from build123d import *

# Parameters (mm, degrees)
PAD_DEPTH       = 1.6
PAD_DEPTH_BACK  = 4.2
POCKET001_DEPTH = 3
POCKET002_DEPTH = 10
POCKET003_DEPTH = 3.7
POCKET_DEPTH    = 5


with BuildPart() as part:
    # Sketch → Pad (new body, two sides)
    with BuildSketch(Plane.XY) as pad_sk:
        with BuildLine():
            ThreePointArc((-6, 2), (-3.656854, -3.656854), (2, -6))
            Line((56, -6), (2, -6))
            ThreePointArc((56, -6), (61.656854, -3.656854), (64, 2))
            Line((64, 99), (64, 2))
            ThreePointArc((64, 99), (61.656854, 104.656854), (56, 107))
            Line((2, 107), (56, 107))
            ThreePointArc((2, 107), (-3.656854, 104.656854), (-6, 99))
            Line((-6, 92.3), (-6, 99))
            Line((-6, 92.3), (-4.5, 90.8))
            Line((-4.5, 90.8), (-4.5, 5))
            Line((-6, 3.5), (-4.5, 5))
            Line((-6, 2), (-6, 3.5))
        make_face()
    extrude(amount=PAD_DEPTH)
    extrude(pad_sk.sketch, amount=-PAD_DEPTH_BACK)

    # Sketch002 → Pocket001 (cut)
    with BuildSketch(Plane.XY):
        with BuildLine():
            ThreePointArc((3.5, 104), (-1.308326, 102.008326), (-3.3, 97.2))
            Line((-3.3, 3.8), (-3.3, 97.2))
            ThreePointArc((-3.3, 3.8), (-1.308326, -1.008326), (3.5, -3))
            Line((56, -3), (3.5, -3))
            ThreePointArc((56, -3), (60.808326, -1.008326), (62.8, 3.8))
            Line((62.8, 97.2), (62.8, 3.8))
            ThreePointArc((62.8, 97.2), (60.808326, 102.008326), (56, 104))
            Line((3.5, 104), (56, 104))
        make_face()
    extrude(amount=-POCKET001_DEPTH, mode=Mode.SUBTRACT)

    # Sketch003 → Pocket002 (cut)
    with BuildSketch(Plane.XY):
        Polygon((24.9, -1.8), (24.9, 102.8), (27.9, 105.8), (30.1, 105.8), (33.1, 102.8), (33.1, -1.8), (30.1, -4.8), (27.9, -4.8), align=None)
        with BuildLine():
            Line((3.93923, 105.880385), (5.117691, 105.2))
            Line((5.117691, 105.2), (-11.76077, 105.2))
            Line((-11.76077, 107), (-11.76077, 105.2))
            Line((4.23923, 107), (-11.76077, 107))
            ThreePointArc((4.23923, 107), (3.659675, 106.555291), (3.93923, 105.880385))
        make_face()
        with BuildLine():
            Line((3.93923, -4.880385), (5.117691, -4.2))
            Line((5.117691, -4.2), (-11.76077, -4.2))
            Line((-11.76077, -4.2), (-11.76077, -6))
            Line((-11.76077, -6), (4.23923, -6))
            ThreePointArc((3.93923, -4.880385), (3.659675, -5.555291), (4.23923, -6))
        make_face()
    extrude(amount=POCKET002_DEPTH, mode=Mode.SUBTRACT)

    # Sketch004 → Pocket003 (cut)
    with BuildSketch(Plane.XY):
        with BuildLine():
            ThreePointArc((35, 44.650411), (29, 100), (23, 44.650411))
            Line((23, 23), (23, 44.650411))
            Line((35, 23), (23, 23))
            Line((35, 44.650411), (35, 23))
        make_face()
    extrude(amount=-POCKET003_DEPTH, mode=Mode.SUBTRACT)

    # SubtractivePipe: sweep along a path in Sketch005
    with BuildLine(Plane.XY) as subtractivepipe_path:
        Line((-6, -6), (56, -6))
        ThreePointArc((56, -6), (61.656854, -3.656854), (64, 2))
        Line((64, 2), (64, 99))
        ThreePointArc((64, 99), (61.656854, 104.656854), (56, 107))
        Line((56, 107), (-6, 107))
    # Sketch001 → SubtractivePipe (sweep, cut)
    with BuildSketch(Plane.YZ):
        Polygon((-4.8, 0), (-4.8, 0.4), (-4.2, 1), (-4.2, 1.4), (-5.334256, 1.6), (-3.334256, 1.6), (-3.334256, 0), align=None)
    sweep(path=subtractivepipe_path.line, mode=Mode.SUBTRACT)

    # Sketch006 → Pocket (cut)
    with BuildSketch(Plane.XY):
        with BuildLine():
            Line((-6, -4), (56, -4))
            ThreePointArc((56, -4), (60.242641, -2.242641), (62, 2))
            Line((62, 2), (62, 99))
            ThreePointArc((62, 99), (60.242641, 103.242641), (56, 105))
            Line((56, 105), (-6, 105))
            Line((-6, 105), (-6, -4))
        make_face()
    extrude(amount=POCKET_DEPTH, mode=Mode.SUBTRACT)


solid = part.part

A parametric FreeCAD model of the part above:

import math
import FreeCAD as App
import Part
import Sketcher
from FreeCAD import Vector
Q = App.Units.Quantity


def add_polygon(sketch, points):
    """Adds a closed chain of lines whose ends are joined by coincident constraints."""
    first, n = sketch.GeometryCount, len(points)
    for a, b in zip(points, points[1:] + points[:1]):
        sketch.addGeometry(Part.LineSegment(App.Vector(*a, 0), App.Vector(*b, 0)), False)
    for i in range(n):
        sketch.addConstraint(Sketcher.Constraint("Coincident", first + i, 2, first + (i + 1) % n, 1))

doc = App.newDocument("Part")
body = doc.addObject("PartDesign::Body", "Body")

# Sketch on XY plane
sketch1 = body.newObject("Sketcher::SketchObject", "Sketch")
sketch1.AttachmentSupport = (doc.getObject("XY_Plane"), [""])
sketch1.MapMode = "FlatFace"
sketch1.addGeometry([
    Part.ArcOfCircle(Part.Circle(Vector(2.000001, 2.000001, 0), Vector(0, 0, 1), 8.000001), math.radians(-179.999994), math.radians(-90.000006)),  # 0
    Part.LineSegment(Vector(2, -6, 0), Vector(56, -6, 0)),  # 1
    Part.ArcOfCircle(Part.Circle(Vector(55.999999, 2.000001, 0), Vector(0, 0, 1), 8.000001), math.radians(-89.999994), math.radians(-0.000006)),  # 2
    Part.LineSegment(Vector(64, 2, 0), Vector(64, 99, 0)),  # 3
    Part.ArcOfCircle(Part.Circle(Vector(55.999999, 98.999999, 0), Vector(0, 0, 1), 8.000001), math.radians(0.000006), math.radians(89.999994)),  # 4
    Part.LineSegment(Vector(56, 107, 0), Vector(2, 107, 0)),  # 5
    Part.ArcOfCircle(Part.Circle(Vector(2.000001, 98.999999, 0), Vector(0, 0, 1), 8.000001), math.radians(90.000006), math.radians(179.999994)),  # 6
    Part.LineSegment(Vector(-6, 99, 0), Vector(-6, 92.3, 0)),  # 7
    Part.LineSegment(Vector(-6, 92.3, 0), Vector(-4.5, 90.8, 0)),  # 8
    Part.LineSegment(Vector(-4.5, 90.8, 0), Vector(-4.5, 5, 0)),  # 9
    Part.LineSegment(Vector(-4.5, 5, 0), Vector(-6, 3.5, 0)),  # 10
    Part.LineSegment(Vector(-6, 3.5, 0), Vector(-6, 2, 0)),  # 11
], False)
sketch1.addConstraint([
    Sketcher.Constraint("Tangent", 0, 2, 1, 1),
    Sketcher.Constraint("Tangent", 1, 2, 2, 1),
    Sketcher.Constraint("Tangent", 2, 2, 3, 1),
    Sketcher.Constraint("Tangent", 3, 2, 4, 1),
    Sketcher.Constraint("Tangent", 4, 2, 5, 1),
    Sketcher.Constraint("Tangent", 5, 2, 6, 1),
    Sketcher.Constraint("Tangent", 6, 2, 7, 1),
    Sketcher.Constraint("Coincident", 7, 2, 8, 1),
    Sketcher.Constraint("Coincident", 8, 2, 9, 1),
    Sketcher.Constraint("Coincident", 9, 2, 10, 1),
    Sketcher.Constraint("Coincident", 10, 2, 11, 1),
    Sketcher.Constraint("Tangent", 11, 2, 0, 1),
    Sketcher.Constraint("Horizontal", 1),
    Sketcher.Constraint("Vertical", 3),
    Sketcher.Constraint("Horizontal", 5),
    Sketcher.Constraint("Vertical", 7),
    Sketcher.Constraint("Vertical", 9),
    Sketcher.Constraint("Vertical", 11),
    Sketcher.Constraint("Equal", 0, 2),
    Sketcher.Constraint("Equal", 2, 4),
    Sketcher.Constraint("Equal", 4, 6),
    Sketcher.Constraint("Perpendicular", 8, 10),
    Sketcher.Constraint("Vertical", 0, 3, 6, 3),
    Sketcher.Constraint("Equal", 8, 10),
    Sketcher.Constraint("Radius", 0, Q("8.000001 mm")),
    Sketcher.Constraint("DistanceX", 1, 1, 1, 2, Q("54 mm")),
    Sketcher.Constraint("DistanceY", 3, 1, 3, 2, Q("97 mm")),
    Sketcher.Constraint("DistanceY", 7, 2, 7, 1, Q("6.7 mm")),
    Sketcher.Constraint("DistanceY", 9, 2, 9, 1, Q("85.8 mm")),
    Sketcher.Constraint("DistanceY", 11, 2, 11, 1, Q("1.5 mm")),
    Sketcher.Constraint("DistanceX", -1, 1, 0, 3, Q("2.000001 mm")),
    Sketcher.Constraint("DistanceY", -1, 1, 0, 3, Q("2.000001 mm")),
])
pad1 = body.newObject("PartDesign::Pad", "Pad")
pad1.Profile = sketch1
pad1.Type = "TwoLengths"
pad1.Length = 1.6
pad1.Length2 = 4.2

# Sketch on XY plane
sketch2 = body.newObject("Sketcher::SketchObject", "Sketch001")
sketch2.AttachmentSupport = (doc.getObject("XY_Plane"), [""])
sketch2.MapMode = "FlatFace"
sketch2.addGeometry([
    Part.ArcOfCircle(Part.Circle(Vector(3.5, 97.2, 0), Vector(0, 0, 1), 6.8), math.radians(90.000003), math.radians(179.999997)),  # 0
    Part.LineSegment(Vector(-3.3, 97.2, 0), Vector(-3.3, 3.8, 0)),  # 1
    Part.ArcOfCircle(Part.Circle(Vector(3.5, 3.8, 0), Vector(0, 0, 1), 6.8), math.radians(-179.999997), math.radians(-90.000003)),  # 2
    Part.LineSegment(Vector(3.5, -3, 0), Vector(56, -3, 0)),  # 3
    Part.ArcOfCircle(Part.Circle(Vector(56, 3.8, 0), Vector(0, 0, 1), 6.8), math.radians(-89.999997), math.radians(-0.000003)),  # 4
    Part.LineSegment(Vector(62.8, 3.8, 0), Vector(62.8, 97.2, 0)),  # 5
    Part.ArcOfCircle(Part.Circle(Vector(56, 97.2, 0), Vector(0, 0, 1), 6.8), math.radians(0.000003), math.radians(89.999997)),  # 6
    Part.LineSegment(Vector(56, 104, 0), Vector(3.5, 104, 0)),  # 7
], False)
sketch2.addConstraint([
    Sketcher.Constraint("Tangent", 0, 2, 1, 1),
    Sketcher.Constraint("Tangent", 1, 2, 2, 1),
    Sketcher.Constraint("Tangent", 2, 2, 3, 1),
    Sketcher.Constraint("Tangent", 3, 2, 4, 1),
    Sketcher.Constraint("Tangent", 4, 2, 5, 1),
    Sketcher.Constraint("Tangent", 5, 2, 6, 1),
    Sketcher.Constraint("Tangent", 6, 2, 7, 1),
    Sketcher.Constraint("Tangent", 7, 2, 0, 1),
    Sketcher.Constraint("Vertical", 1),
    Sketcher.Constraint("Horizontal", 3),
    Sketcher.Constraint("Vertical", 5),
    Sketcher.Constraint("Horizontal", 7),
    Sketcher.Constraint("Equal", 0, 2),
    Sketcher.Constraint("Equal", 2, 4),
    Sketcher.Constraint("Equal", 4, 6),
    Sketcher.Constraint("Radius", 0, Q("6.8 mm")),
    Sketcher.Constraint("DistanceX", 3, 1, 3, 2, Q("52.5 mm")),
    Sketcher.Constraint("DistanceY", 1, 2, 1, 1, Q("93.4 mm")),
    Sketcher.Constraint("DistanceX", -1, 1, 4, 3, Q("56 mm")),
    Sketcher.Constraint("DistanceY", 2, 2, -1, 1, Q("3 mm")),
])
pocket1 = body.newObject("PartDesign::Pocket", "Pocket")
pocket1.Profile = sketch2
pocket1.Length = 3

# Sketch on XY plane
sketch3 = body.newObject("Sketcher::SketchObject", "Sketch002")
sketch3.AttachmentSupport = (doc.getObject("XY_Plane"), [""])
sketch3.MapMode = "FlatFace"
add_polygon(sketch3, [(24.9, 102.8), (24.9, -1.8), (27.9, -4.8), (30.1, -4.8), (33.1, -1.8), (33.1, 102.8), (30.1, 105.8), (27.9, 105.8)])  # lines 0-7
sketch3.addGeometry(Part.LineSegment(Vector(5.117691, 105.2, 0), Vector(3.93923, 105.880385, 0)), False)  # 8
sketch3.addGeometry(Part.ArcOfCircle(Part.Circle(Vector(4.239231, 106.4, 0), Vector(0, 0, 1), 0.6), math.radians(90.000063), math.radians(239.999931)), False)  # 9
sketch3.addGeometry(Part.LineSegment(Vector(4.23923, 107, 0), Vector(-11.76077, 107, 0)), False)  # 10
sketch3.addGeometry(Part.LineSegment(Vector(-11.76077, 107, 0), Vector(-11.76077, 105.2, 0)), False)  # 11
sketch3.addGeometry(Part.LineSegment(Vector(-11.76077, 105.2, 0), Vector(5.117691, 105.2, 0)), False)  # 12
sketch3.addGeometry(Part.LineSegment(Vector(3.93923, -4.880385, 0), Vector(5.117691, -4.2, 0)), False)  # 13
sketch3.addGeometry(Part.LineSegment(Vector(5.117691, -4.2, 0), Vector(-11.76077, -4.2, 0)), False)  # 14
sketch3.addGeometry(Part.LineSegment(Vector(-11.76077, -4.2, 0), Vector(-11.76077, -6, 0)), False)  # 15
sketch3.addGeometry(Part.LineSegment(Vector(-11.76077, -6, 0), Vector(4.23923, -6, 0)), False)  # 16
sketch3.addGeometry(Part.ArcOfCircle(Part.Circle(Vector(4.239231, -5.4, 0), Vector(0, 0, 1), 0.6), math.radians(120.000069), math.radians(269.999937)), False)  # 17
sketch3.addConstraint([
    Sketcher.Constraint("Tangent", 8, 2, 9, 2),
    Sketcher.Constraint("Tangent", 9, 1, 10, 1),
    Sketcher.Constraint("Coincident", 10, 2, 11, 1),
    Sketcher.Constraint("Coincident", 11, 2, 12, 1),
    Sketcher.Constraint("Coincident", 12, 2, 8, 1),
    Sketcher.Constraint("Coincident", 13, 2, 14, 1),
    Sketcher.Constraint("Coincident", 14, 2, 15, 1),
    Sketcher.Constraint("Coincident", 15, 2, 16, 1),
    Sketcher.Constraint("Tangent", 16, 2, 17, 2),
    Sketcher.Constraint("Tangent", 17, 1, 13, 1),
    Sketcher.Constraint("Vertical", 0),
    Sketcher.Constraint("Horizontal", 2),
    Sketcher.Constraint("Vertical", 4),
    Sketcher.Constraint("Horizontal", 6),
    Sketcher.Constraint("Horizontal", 10),
    Sketcher.Constraint("Vertical", 11),
    Sketcher.Constraint("Horizontal", 12),
    Sketcher.Constraint("Horizontal", 14),
    Sketcher.Constraint("Vertical", 15),
    Sketcher.Constraint("Horizontal", 16),
    Sketcher.Constraint("Equal", 9, 17),
    Sketcher.Constraint("Perpendicular", 1, 3),
    Sketcher.Constraint("Perpendicular", 3, 5),
    Sketcher.Constraint("Perpendicular", 5, 7),
    Sketcher.Constraint("Horizontal", 0, 2, 3, 2),
    Sketcher.Constraint("Horizontal", 4, 2, 7, 2),
    Sketcher.Constraint("Vertical", 9, 3, 17, 3),
    Sketcher.Constraint("Vertical", 2, 2, 5, 2),
    Sketcher.Constraint("Vertical", 1, 2, 6, 2),
    Sketcher.Constraint("Vertical", 12, 2, 13, 2),
    Sketcher.Constraint("Vertical", 11, 2, 14, 2),
    Sketcher.Constraint("Vertical", 8, 2, 17, 1),
    Sketcher.Constraint("Radius", 9, Q("0.6 mm")),
    Sketcher.Constraint("DistanceX", 10, 2, 10, 1, Q("16 mm")),
    Sketcher.Constraint("Angle", 8, Q("149.999992 deg")),
    Sketcher.Constraint("DistanceX", 2, 1, 2, 2, Q("2.2 mm")),
    Sketcher.Constraint("DistanceY", 0, 2, 0, 1, Q("104.6 mm")),
    Sketcher.Constraint("DistanceY", 11, 2, 11, 1, Q("1.8 mm")),
    Sketcher.Constraint("DistanceY", -1, 1, 9, 1, Q("107 mm")),
    Sketcher.Constraint("DistanceY", 15, 2, -1, 1, Q("6 mm")),
    Sketcher.Constraint("DistanceX", 0, 2, 1, 2, Q("3 mm")),
    Sketcher.Constraint("DistanceX", -1, 1, 0, 2, Q("24.9 mm")),
    Sketcher.Constraint("DistanceY", 0, 2, -1, 1, Q("1.8 mm")),
    Sketcher.Constraint("DistanceX", -1, 1, 9, 3, Q("4.239231 mm")),
])
pocket2 = body.newObject("PartDesign::Pocket", "Pocket001")
pocket2.Profile = sketch3
pocket2.Length = 10
pocket2.Reversed = True

# Sketch on XY plane
sketch4 = body.newObject("Sketcher::SketchObject", "Sketch003")
sketch4.AttachmentSupport = (doc.getObject("XY_Plane"), [""])
sketch4.MapMode = "FlatFace"
sketch4.addGeometry([
    Part.ArcOfCircle(Part.Circle(Vector(29, 72, 0), Vector(0, 0, 1), 28), math.radians(-77.626375), math.radians(257.626375)),
    Part.LineSegment(Vector(23, 44.650411, 0), Vector(23, 23, 0)),
    Part.LineSegment(Vector(23, 23, 0), Vector(35, 23, 0)),
    Part.LineSegment(Vector(35, 23, 0), Vector(35, 44.650411, 0)),
], False)
sketch4.addConstraint([
    Sketcher.Constraint("Coincident", 0, 2, 1, 1),
    Sketcher.Constraint("Coincident", 1, 2, 2, 1),
    Sketcher.Constraint("Coincident", 2, 2, 3, 1),
    Sketcher.Constraint("Coincident", 3, 2, 0, 1),
    Sketcher.Constraint("Vertical", 1),
    Sketcher.Constraint("Horizontal", 2),
    Sketcher.Constraint("Vertical", 3),
    Sketcher.Constraint("Horizontal", 0, 2, 3, 2),
    Sketcher.Constraint("Radius", 0, Q("28 mm")),
    Sketcher.Constraint("DistanceX", 2, 1, 2, 2, Q("12 mm")),
    Sketcher.Constraint("DistanceX", -1, 1, 0, 3, Q("29 mm")),
    Sketcher.Constraint("DistanceY", -1, 1, 0, 3, Q("72 mm")),
    Sketcher.Constraint("DistanceY", -1, 1, 1, 2, Q("23 mm")),
])
pocket3 = body.newObject("PartDesign::Pocket", "Pocket002")
pocket3.Profile = sketch4
pocket3.Length = 3.7

# Sketch on YZ plane
sketch5 = body.newObject("Sketcher::SketchObject", "Sketch004")
sketch5.AttachmentSupport = (doc.getObject("YZ_Plane"), [""])
sketch5.MapMode = "FlatFace"
add_polygon(sketch5, [(-4.8, 0.4), (-4.8, 0), (-3.334256, 0), (-3.334256, 1.6), (-5.334256, 1.6), (-4.2, 1.4), (-4.2, 1)])  # lines 0-6
sketch5.addConstraint([
    Sketcher.Constraint("Vertical", 0),
    Sketcher.Constraint("Horizontal", 1),
    Sketcher.Constraint("Vertical", 2),
    Sketcher.Constraint("Horizontal", 3),
    Sketcher.Constraint("Vertical", 5),
    Sketcher.Constraint("PointOnObject", 0, 2, -1),
    Sketcher.Constraint("Equal", 0, 5),
    Sketcher.Constraint("DistanceX", 3, 2, 3, 1, Q("2 mm")),
    Sketcher.Constraint("Angle", 4, Q("-10.000003 deg")),
    Sketcher.Constraint("Angle", 6, Q("-135 deg")),
    Sketcher.Constraint("DistanceY", 0, 2, 0, 1, Q("0.4 mm")),
    Sketcher.Constraint("DistanceY", 2, 1, 2, 2, Q("1.6 mm")),
    Sketcher.Constraint("DistanceY", -1, 1, 5, 2, Q("1 mm")),
    Sketcher.Constraint("DistanceX", 0, 2, -1, 1, Q("4.8 mm")),
])

# Sketch on XY plane
sketch6 = body.newObject("Sketcher::SketchObject", "Sketch005")
sketch6.AttachmentSupport = (doc.getObject("XY_Plane"), [""])
sketch6.MapMode = "FlatFace"
sketch6.addGeometry([
    Part.LineSegment(Vector(-6, -6, 0), Vector(56, -6, 0)),  # 0
    Part.ArcOfCircle(Part.Circle(Vector(55.999999, 2.000001, 0), Vector(0, 0, 1), 8.000001), math.radians(-89.999994), math.radians(-0.000006)),  # 1
    Part.LineSegment(Vector(64, 2, 0), Vector(64, 99, 0)),  # 2
    Part.ArcOfCircle(Part.Circle(Vector(55.999999, 98.999999, 0), Vector(0, 0, 1), 8.000001), math.radians(0.000006), math.radians(89.999994)),  # 3
    Part.LineSegment(Vector(56, 107, 0), Vector(-6, 107, 0)),  # 4
], False)
sketch6.addConstraint([
    Sketcher.Constraint("Tangent", 0, 2, 1, 1),
    Sketcher.Constraint("Tangent", 1, 2, 2, 1),
    Sketcher.Constraint("Tangent", 2, 2, 3, 1),
    Sketcher.Constraint("Tangent", 3, 2, 4, 1),
    Sketcher.Constraint("Horizontal", 0),
    Sketcher.Constraint("Vertical", 2),
    Sketcher.Constraint("Horizontal", 4),
    Sketcher.Constraint("Equal", 1, 3),
    Sketcher.Constraint("Vertical", 0, 1, 4, 2),
    Sketcher.Constraint("Radius", 1, Q("8.000001 mm")),
    Sketcher.Constraint("DistanceX", 0, 1, 0, 2, Q("62 mm")),
    Sketcher.Constraint("DistanceY", 2, 1, 2, 2, Q("97 mm")),
    Sketcher.Constraint("DistanceX", -1, 1, 1, 3, Q("55.999999 mm")),
    Sketcher.Constraint("DistanceY", -1, 1, 1, 3, Q("2.000001 mm")),
])
doc.recompute()

subtractivepipe = body.newObject("PartDesign::SubtractivePipe", "SubtractivePipe")
subtractivepipe.Profile = sketch5
subtractivepipe.Spine = (sketch6, ["Edge1", "Edge2", "Edge3", "Edge4", "Edge5"])

# Sketch on XY plane
sketch7 = body.newObject("Sketcher::SketchObject", "Sketch006")
sketch7.AttachmentSupport = (doc.getObject("XY_Plane"), [""])
sketch7.MapMode = "FlatFace"
sketch7.addGeometry([
    Part.LineSegment(Vector(-6, -4, 0), Vector(56, -4, 0)),  # 0
    Part.ArcOfCircle(Part.Circle(Vector(56.000001, 1.999999, 0), Vector(0, 0, 1), 5.999999), math.radians(-90.00001), math.radians(0.00001)),  # 1
    Part.LineSegment(Vector(62, 2, 0), Vector(62, 99, 0)),  # 2
    Part.ArcOfCircle(Part.Circle(Vector(56.000001, 99.000001, 0), Vector(0, 0, 1), 5.999999), math.radians(-0.00001), math.radians(90.00001)),  # 3
    Part.LineSegment(Vector(56, 105, 0), Vector(-6, 105, 0)),  # 4
    Part.LineSegment(Vector(-6, 105, 0), Vector(-6, -4, 0)),  # 5
], False)
sketch7.addConstraint([
    Sketcher.Constraint("Tangent", 0, 2, 1, 1),
    Sketcher.Constraint("Tangent", 1, 2, 2, 1),
    Sketcher.Constraint("Tangent", 2, 2, 3, 1),
    Sketcher.Constraint("Tangent", 3, 2, 4, 1),
    Sketcher.Constraint("Coincident", 4, 2, 5, 1),
    Sketcher.Constraint("Coincident", 5, 2, 0, 1),
    Sketcher.Constraint("Horizontal", 0),
    Sketcher.Constraint("Vertical", 2),
    Sketcher.Constraint("Horizontal", 4),
    Sketcher.Constraint("Vertical", 5),
    Sketcher.Constraint("Equal", 1, 3),
    Sketcher.Constraint("Radius", 1, Q("5.999999 mm")),
    Sketcher.Constraint("DistanceX", 0, 1, 0, 2, Q("62 mm")),
    Sketcher.Constraint("DistanceY", 2, 1, 2, 2, Q("97 mm")),
    Sketcher.Constraint("DistanceX", -1, 1, 1, 3, Q("56.000001 mm")),
    Sketcher.Constraint("DistanceY", -1, 1, 1, 3, Q("1.999999 mm")),
])
pocket4 = body.newObject("PartDesign::Pocket", "Pocket003")
pocket4.Profile = sketch7
pocket4.Length = 5
pocket4.Reversed = True

doc.recompute()
